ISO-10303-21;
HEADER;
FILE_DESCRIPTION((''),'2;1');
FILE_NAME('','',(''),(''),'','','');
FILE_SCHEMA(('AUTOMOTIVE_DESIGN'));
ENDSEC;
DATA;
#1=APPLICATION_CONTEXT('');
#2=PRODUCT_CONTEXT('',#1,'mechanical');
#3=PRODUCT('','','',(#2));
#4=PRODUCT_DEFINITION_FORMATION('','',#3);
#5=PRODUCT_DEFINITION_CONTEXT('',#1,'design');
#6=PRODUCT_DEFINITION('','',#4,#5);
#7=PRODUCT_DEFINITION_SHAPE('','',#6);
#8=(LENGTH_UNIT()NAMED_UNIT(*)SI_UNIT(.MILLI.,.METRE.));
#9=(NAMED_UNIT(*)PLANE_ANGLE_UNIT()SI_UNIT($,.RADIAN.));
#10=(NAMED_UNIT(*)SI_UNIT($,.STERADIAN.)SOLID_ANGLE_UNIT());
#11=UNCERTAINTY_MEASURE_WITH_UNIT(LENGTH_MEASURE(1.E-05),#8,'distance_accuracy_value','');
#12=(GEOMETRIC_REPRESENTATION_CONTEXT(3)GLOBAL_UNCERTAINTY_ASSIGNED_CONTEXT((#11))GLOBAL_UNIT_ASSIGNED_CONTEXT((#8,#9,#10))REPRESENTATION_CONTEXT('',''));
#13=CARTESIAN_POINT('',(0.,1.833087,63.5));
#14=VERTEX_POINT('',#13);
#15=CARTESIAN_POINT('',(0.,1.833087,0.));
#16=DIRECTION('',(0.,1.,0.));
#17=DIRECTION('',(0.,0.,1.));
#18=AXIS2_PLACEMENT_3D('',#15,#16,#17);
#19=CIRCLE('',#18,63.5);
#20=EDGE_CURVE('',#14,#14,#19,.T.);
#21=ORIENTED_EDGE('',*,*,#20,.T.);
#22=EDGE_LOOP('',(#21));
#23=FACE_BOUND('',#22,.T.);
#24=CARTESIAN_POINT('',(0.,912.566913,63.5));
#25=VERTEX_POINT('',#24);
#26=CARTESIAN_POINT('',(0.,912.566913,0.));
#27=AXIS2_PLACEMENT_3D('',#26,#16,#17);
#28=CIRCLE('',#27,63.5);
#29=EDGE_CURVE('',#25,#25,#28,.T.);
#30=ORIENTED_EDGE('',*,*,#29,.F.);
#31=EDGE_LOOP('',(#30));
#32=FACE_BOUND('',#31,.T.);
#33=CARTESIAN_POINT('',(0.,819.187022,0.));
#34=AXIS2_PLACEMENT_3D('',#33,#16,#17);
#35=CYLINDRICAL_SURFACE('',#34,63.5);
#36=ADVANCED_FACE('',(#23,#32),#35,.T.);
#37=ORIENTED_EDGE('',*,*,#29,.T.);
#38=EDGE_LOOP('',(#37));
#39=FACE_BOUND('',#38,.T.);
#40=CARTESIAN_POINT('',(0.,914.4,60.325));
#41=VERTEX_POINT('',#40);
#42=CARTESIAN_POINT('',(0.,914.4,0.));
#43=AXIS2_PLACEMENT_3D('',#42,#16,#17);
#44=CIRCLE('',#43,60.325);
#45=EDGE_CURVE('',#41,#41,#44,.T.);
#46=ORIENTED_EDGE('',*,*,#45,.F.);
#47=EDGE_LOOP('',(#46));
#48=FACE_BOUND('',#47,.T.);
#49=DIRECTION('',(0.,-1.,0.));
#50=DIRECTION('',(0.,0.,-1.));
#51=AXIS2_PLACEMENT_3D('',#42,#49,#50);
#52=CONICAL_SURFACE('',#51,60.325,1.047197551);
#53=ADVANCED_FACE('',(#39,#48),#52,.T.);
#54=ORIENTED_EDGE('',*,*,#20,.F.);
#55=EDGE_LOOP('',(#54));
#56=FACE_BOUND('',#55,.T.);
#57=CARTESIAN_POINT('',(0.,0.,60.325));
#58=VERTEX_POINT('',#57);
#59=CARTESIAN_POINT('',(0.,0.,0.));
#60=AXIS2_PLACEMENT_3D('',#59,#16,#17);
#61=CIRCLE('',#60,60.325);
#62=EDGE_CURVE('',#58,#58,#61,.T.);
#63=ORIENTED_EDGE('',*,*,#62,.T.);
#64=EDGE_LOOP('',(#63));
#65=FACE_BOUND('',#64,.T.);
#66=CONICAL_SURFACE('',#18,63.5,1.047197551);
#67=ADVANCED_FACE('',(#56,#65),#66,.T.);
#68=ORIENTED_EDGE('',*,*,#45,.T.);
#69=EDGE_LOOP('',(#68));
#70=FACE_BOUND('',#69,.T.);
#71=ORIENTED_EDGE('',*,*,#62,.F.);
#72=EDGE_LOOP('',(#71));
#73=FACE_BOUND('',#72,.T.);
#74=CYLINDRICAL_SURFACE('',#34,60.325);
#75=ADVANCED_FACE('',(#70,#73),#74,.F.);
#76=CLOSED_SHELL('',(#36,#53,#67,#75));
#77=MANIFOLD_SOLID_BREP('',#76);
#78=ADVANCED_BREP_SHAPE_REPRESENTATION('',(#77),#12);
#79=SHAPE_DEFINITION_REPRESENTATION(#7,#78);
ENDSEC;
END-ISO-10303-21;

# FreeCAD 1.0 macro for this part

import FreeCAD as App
import Part
import Sketcher

V = App.Vector
Q = App.Units.Quantity


def add_polygon(sketch, points):
    """Adds a closed chain of lines whose ends are joined by coincident constraints."""
    first, n = sketch.GeometryCount, len(points)
    for a, b in zip(points, points[1:] + points[:1]):
        sketch.addGeometry(Part.LineSegment(App.Vector(*a, 0), App.Vector(*b, 0)), False)
    for i in range(n):
        sketch.addConstraint(Sketcher.Constraint("Coincident", first + i, 2, first + (i + 1) % n, 1))

doc = App.newDocument("Part")
body = doc.addObject("PartDesign::Body", "Body")

# Sketch on XY plane
sketch1 = body.newObject("Sketcher::SketchObject", "Sketch")
sketch1.AttachmentSupport = (doc.getObject("XY_Plane"), [""])
sketch1.MapMode = "FlatFace"
add_polygon(sketch1, [(-63.5, 912.6), (-63.5, 1.8), (-60.3, 0), (-60.3, 914.4)])  # lines 0-3
sketch1.addConstraint(Sketcher.Constraint("Vertical", 0))
sketch1.addConstraint(Sketcher.Constraint("Vertical", 2))
sketch1.addConstraint(Sketcher.Constraint("PointOnObject", 1, 2, -1))
sketch1.addConstraint(Sketcher.Constraint("Equal", 1, 3))
sketch1.addConstraint(Sketcher.Constraint("DistanceY", 2, 1, 2, 2, Q("36 in")))
sketch1.addConstraint(Sketcher.Constraint("Angle", 1, Q("-30 deg")))
sketch1.addConstraint(Sketcher.Constraint("DistanceX", 0, 2, -1, 1, Q("2.5 in")))
sketch1.addConstraint(Sketcher.Constraint("DistanceX", 1, 2, -1, 1, Q("2.375 in")))
revolution = body.newObject("PartDesign::Revolution", "Revolution")
revolution.Profile = sketch1
revolution.ReferenceAxis = (sketch1, ["V_Axis"])
revolution.Angle = 360

doc.recompute()
